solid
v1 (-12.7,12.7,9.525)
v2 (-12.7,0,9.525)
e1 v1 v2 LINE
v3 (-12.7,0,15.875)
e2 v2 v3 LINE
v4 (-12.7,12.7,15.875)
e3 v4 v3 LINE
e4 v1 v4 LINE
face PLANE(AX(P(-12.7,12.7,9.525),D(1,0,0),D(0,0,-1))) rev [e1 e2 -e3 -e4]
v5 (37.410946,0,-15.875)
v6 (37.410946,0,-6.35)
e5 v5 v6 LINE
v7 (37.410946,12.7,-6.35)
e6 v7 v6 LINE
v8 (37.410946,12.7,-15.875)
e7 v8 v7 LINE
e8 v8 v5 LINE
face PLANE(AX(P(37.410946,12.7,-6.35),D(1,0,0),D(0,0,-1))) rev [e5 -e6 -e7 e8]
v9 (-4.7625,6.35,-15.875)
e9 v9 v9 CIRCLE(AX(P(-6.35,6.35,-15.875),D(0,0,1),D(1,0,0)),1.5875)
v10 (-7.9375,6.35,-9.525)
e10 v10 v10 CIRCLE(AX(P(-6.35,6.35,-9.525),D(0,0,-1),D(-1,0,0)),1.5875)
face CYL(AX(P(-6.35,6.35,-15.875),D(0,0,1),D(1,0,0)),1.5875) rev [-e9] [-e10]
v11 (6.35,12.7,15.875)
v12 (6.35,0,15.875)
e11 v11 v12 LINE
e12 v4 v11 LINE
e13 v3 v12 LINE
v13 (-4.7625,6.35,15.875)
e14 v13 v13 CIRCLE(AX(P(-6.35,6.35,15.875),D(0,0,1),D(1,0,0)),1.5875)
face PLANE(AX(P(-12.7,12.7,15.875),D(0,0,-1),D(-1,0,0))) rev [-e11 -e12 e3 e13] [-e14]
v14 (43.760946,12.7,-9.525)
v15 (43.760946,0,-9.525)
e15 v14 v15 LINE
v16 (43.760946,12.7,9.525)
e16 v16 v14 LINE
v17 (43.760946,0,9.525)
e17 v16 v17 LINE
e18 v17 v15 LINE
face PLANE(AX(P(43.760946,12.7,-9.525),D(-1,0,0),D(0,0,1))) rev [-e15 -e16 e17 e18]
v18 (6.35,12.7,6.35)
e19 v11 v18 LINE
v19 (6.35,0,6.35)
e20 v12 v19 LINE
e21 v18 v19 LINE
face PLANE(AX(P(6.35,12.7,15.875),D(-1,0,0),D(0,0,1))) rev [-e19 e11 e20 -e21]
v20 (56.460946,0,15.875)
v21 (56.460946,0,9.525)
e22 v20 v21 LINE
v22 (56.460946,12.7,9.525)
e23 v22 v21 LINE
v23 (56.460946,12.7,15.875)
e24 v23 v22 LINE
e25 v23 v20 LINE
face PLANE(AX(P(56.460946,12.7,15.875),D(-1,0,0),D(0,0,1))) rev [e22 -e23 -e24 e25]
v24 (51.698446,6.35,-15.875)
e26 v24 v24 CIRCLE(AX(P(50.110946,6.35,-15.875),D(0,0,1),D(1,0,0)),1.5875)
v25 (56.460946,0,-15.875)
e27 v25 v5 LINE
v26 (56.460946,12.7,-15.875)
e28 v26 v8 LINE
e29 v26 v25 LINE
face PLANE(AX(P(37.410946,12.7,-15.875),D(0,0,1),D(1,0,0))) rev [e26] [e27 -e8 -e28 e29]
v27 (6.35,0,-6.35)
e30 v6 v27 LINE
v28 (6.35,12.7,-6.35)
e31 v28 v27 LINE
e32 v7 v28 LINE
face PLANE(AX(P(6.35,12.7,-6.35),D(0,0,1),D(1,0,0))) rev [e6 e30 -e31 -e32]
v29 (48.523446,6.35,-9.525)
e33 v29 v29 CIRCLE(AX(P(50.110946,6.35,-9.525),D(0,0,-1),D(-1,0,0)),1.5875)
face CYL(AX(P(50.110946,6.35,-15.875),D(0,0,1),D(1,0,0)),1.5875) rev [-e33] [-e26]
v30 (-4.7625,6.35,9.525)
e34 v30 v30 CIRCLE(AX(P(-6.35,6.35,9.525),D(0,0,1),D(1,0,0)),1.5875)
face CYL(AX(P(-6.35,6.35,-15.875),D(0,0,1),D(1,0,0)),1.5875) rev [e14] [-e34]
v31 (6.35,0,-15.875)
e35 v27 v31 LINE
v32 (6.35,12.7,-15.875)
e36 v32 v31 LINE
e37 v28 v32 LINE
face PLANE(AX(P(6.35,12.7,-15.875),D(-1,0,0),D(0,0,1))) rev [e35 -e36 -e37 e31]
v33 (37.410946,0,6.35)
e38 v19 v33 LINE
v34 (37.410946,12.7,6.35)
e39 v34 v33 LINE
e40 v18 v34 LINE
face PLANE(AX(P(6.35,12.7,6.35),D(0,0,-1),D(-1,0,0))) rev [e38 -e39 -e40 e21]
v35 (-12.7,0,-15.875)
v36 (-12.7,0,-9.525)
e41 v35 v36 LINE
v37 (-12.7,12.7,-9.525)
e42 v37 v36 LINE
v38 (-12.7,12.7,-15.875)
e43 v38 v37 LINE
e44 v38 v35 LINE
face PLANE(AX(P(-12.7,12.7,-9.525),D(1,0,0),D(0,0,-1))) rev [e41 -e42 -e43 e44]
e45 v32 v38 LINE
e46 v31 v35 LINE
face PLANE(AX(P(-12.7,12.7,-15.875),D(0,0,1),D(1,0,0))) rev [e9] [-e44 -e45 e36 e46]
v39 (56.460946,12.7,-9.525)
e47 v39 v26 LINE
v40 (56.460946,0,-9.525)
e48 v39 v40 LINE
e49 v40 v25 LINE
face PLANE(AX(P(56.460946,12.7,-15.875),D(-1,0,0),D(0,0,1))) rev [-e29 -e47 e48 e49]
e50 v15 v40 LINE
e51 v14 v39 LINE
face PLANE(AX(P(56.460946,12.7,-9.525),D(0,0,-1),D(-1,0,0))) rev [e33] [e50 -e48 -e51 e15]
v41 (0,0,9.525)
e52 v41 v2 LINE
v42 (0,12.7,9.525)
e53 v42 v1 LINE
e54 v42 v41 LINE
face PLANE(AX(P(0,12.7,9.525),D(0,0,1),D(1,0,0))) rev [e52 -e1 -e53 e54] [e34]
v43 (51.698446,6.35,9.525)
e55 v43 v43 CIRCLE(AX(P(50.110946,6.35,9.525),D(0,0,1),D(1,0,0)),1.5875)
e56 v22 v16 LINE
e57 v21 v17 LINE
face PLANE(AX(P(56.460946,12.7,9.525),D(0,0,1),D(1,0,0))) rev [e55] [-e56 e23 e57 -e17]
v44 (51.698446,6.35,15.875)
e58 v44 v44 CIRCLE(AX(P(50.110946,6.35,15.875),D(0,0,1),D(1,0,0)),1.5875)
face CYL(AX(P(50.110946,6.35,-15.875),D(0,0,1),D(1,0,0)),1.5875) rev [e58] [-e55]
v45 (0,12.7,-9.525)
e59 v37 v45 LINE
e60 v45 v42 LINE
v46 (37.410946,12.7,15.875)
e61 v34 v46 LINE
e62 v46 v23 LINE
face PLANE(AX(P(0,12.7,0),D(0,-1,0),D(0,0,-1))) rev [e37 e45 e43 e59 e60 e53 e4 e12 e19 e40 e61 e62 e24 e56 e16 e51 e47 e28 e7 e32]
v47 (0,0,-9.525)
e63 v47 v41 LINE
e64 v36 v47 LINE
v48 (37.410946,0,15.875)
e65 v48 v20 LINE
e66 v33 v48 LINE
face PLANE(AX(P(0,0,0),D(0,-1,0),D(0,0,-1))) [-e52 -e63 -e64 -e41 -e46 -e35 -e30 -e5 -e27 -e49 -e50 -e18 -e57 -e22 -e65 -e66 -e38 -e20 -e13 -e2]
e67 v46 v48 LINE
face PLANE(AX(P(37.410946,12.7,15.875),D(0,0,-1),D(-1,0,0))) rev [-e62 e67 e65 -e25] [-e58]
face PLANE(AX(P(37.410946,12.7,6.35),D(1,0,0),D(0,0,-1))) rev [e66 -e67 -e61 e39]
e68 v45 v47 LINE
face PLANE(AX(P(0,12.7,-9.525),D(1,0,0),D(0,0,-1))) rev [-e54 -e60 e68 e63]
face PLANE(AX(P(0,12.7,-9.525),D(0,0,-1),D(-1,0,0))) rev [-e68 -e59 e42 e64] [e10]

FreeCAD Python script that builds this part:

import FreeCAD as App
import Part
import Sketcher

V = App.Vector
Q = App.Units.Quantity

doc = App.newDocument("Part")
body = doc.addObject("PartDesign::Body", "Body")

# Sketch on XZ plane
sketch1 = doc.addObject("Sketcher::SketchObject", "Sketch")
body.addObject(sketch1)
sketch1.AttachmentSupport = (doc.XZ_Plane, [""])
sketch1.MapMode = "FlatFace"
sketch1.addGeometry([
    Part.LineSegment(V(-13, -10, 0), V(0, -10, 0)),  # 0
    Part.LineSegment(V(0, -10, 0), V(0, 10, 0)),  # 1
    Part.LineSegment(V(0, 10, 0), V(-13, 10, 0)),  # 2
    Part.LineSegment(V(-13, 10, 0), V(-13, 16, 0)),  # 3
    Part.LineSegment(V(-13, 16, 0), V(6, 16, 0)),  # 4
    Part.LineSegment(V(6, 16, 0), V(6, 6, 0)),  # 5
    Part.LineSegment(V(6, 6, 0), V(37, 6, 0)),  # 6
    Part.LineSegment(V(37, 6, 0), V(37, 16, 0)),  # 7
    Part.LineSegment(V(37, 16, 0), V(56, 16, 0)),  # 8
    Part.LineSegment(V(56, 16, 0), V(56, 10, 0)),  # 9
    Part.LineSegment(V(56, 10, 0), V(44, 10, 0)),  # 10
    Part.LineSegment(V(44, 10, 0), V(44, -10, 0)),  # 11
    Part.LineSegment(V(44, -10, 0), V(56, -10, 0)),  # 12
    Part.LineSegment(V(56, -10, 0), V(56, -16, 0)),  # 13
    Part.LineSegment(V(56, -16, 0), V(37, -16, 0)),  # 14
    Part.LineSegment(V(37, -16, 0), V(37, -6, 0)),  # 15
    Part.LineSegment(V(37, -6, 0), V(6, -6, 0)),  # 16
    Part.LineSegment(V(6, -6, 0), V(6, -16, 0)),  # 17
    Part.LineSegment(V(6, -16, 0), V(-13, -16, 0)),  # 18
    Part.LineSegment(V(-13, -16, 0), V(-13, -10, 0)),  # 19
], False)
sketch1.addConstraint([
    Sketcher.Constraint("Coincident", 0, 2, 1, 1),
    Sketcher.Constraint("Coincident", 1, 2, 2, 1),
    Sketcher.Constraint("Coincident", 2, 2, 3, 1),
    Sketcher.Constraint("Coincident", 3, 2, 4, 1),
    Sketcher.Constraint("Coincident", 4, 2, 5, 1),
    Sketcher.Constraint("Coincident", 5, 2, 6, 1),
    Sketcher.Constraint("Coincident", 6, 2, 7, 1),
    Sketcher.Constraint("Coincident", 7, 2, 8, 1),
    Sketcher.Constraint("Coincident", 8, 2, 9, 1),
    Sketcher.Constraint("Coincident", 9, 2, 10, 1),
    Sketcher.Constraint("Coincident", 10, 2, 11, 1),
    Sketcher.Constraint("Coincident", 11, 2, 12, 1),
    Sketcher.Constraint("Coincident", 12, 2, 13, 1),
    Sketcher.Constraint("Coincident", 13, 2, 14, 1),
    Sketcher.Constraint("Coincident", 14, 2, 15, 1),
    Sketcher.Constraint("Coincident", 15, 2, 16, 1),
    Sketcher.Constraint("Coincident", 16, 2, 17, 1),
    Sketcher.Constraint("Coincident", 17, 2, 18, 1),
    Sketcher.Constraint("Coincident", 18, 2, 19, 1),
    Sketcher.Constraint("Coincident", 19, 2, 0, 1),
    Sketcher.Constraint("Horizontal", 0),
    Sketcher.Constraint("Vertical", 1),
    Sketcher.Constraint("Horizontal", 2),
    Sketcher.Constraint("Vertical", 3),
    Sketcher.Constraint("Horizontal", 4),
    Sketcher.Constraint("Vertical", 5),
    Sketcher.Constraint("Horizontal", 6),
    Sketcher.Constraint("Vertical", 7),
    Sketcher.Constraint("Horizontal", 8),
    Sketcher.Constraint("Vertical", 9),
    Sketcher.Constraint("Horizontal", 10),
    Sketcher.Constraint("Vertical", 11),
    Sketcher.Constraint("Horizontal", 12),
    Sketcher.Constraint("Vertical", 13),
    Sketcher.Constraint("Horizontal", 14),
    Sketcher.Constraint("Vertical", 15),
    Sketcher.Constraint("Horizontal", 16),
    Sketcher.Constraint("Vertical", 17),
    Sketcher.Constraint("Horizontal", 18),
    Sketcher.Constraint("Vertical", 19),
    Sketcher.Constraint("Symmetric", 0, 2, 1, 2, -1, 1),
    Sketcher.Constraint("Symmetric", 9, 2, 12, 2, -1),
    Sketcher.Constraint("Symmetric", 7, 2, 14, 2, -1),
    Sketcher.Constraint("Symmetric", 5, 2, 16, 2, -1),
    Sketcher.Constraint("Symmetric", 3, 2, 18, 2, -1),
    Sketcher.Constraint("Horizontal", 4, 2, 7, 2),
    Sketcher.Constraint("Horizontal", 2, 2, 9, 2),
    Sketcher.Constraint("Equal", 4, 8),
    Sketcher.Constraint("Equal", 2, 10),
    Sketcher.Constraint("Equal", 18, 1),
    Sketcher.Constraint("DistanceX", 0, 1, 0, 2, Q("0.5 in")),
    Sketcher.Constraint("DistanceY", 0, 2, 3, 2, Q("1 in")),
    Sketcher.Constraint("DistanceX", 4, 1, 4, 2, Q("0.75 in")),
    Sketcher.Constraint("DistanceY", 15, 2, 6, 2, Q("0.5 in")),
    Sketcher.Constraint("DistanceX", 6, 1, 6, 2, 31.060946),
])
pad1 = doc.addObject("PartDesign::Pad", "Pad")
body.addObject(pad1)
pad1.Profile = sketch1
pad1.Length = Q("0.5 in")
pad1.Reversed = True

# Sketch on XY plane
sketch2 = doc.addObject("Sketcher::SketchObject", "Sketch001")
body.addObject(sketch2)
sketch2.AttachmentSupport = (doc.XY_Plane, [""])
sketch2.MapMode = "FlatFace"
sketch2.AttachmentOffset = App.Placement(V(0, 0, 0.625 * 25.4), App.Rotation())
sketch2.addGeometry([
    Part.Circle(V(50.1, 6.3, 0), V(0, 0, 1), 1.6),
    Part.Circle(V(-6.3, 6.3, 0), V(0, 0, 1), 1.6),
], False)
sketch2.addConstraint([
    Sketcher.Constraint("Equal", 0, 1),
    Sketcher.Constraint("Horizontal", 0, 3, 1, 3),
    Sketcher.Constraint("Diameter", 0, Q("0.125 in")),
    Sketcher.Constraint("DistanceY", -1, 1, 0, 3, Q("0.25 in")),
    Sketcher.Constraint("DistanceX", 1, 3, -1, 1, Q("0.25 in")),
    Sketcher.Constraint("DistanceX", -1, 1, 0, 3, 50.110946),
])
pocket1 = doc.addObject("PartDesign::Pocket", "Pocket")
body.addObject(pocket1)
pocket1.Profile = sketch2
pocket1.Type = "ThroughAll"

doc.recompute()
